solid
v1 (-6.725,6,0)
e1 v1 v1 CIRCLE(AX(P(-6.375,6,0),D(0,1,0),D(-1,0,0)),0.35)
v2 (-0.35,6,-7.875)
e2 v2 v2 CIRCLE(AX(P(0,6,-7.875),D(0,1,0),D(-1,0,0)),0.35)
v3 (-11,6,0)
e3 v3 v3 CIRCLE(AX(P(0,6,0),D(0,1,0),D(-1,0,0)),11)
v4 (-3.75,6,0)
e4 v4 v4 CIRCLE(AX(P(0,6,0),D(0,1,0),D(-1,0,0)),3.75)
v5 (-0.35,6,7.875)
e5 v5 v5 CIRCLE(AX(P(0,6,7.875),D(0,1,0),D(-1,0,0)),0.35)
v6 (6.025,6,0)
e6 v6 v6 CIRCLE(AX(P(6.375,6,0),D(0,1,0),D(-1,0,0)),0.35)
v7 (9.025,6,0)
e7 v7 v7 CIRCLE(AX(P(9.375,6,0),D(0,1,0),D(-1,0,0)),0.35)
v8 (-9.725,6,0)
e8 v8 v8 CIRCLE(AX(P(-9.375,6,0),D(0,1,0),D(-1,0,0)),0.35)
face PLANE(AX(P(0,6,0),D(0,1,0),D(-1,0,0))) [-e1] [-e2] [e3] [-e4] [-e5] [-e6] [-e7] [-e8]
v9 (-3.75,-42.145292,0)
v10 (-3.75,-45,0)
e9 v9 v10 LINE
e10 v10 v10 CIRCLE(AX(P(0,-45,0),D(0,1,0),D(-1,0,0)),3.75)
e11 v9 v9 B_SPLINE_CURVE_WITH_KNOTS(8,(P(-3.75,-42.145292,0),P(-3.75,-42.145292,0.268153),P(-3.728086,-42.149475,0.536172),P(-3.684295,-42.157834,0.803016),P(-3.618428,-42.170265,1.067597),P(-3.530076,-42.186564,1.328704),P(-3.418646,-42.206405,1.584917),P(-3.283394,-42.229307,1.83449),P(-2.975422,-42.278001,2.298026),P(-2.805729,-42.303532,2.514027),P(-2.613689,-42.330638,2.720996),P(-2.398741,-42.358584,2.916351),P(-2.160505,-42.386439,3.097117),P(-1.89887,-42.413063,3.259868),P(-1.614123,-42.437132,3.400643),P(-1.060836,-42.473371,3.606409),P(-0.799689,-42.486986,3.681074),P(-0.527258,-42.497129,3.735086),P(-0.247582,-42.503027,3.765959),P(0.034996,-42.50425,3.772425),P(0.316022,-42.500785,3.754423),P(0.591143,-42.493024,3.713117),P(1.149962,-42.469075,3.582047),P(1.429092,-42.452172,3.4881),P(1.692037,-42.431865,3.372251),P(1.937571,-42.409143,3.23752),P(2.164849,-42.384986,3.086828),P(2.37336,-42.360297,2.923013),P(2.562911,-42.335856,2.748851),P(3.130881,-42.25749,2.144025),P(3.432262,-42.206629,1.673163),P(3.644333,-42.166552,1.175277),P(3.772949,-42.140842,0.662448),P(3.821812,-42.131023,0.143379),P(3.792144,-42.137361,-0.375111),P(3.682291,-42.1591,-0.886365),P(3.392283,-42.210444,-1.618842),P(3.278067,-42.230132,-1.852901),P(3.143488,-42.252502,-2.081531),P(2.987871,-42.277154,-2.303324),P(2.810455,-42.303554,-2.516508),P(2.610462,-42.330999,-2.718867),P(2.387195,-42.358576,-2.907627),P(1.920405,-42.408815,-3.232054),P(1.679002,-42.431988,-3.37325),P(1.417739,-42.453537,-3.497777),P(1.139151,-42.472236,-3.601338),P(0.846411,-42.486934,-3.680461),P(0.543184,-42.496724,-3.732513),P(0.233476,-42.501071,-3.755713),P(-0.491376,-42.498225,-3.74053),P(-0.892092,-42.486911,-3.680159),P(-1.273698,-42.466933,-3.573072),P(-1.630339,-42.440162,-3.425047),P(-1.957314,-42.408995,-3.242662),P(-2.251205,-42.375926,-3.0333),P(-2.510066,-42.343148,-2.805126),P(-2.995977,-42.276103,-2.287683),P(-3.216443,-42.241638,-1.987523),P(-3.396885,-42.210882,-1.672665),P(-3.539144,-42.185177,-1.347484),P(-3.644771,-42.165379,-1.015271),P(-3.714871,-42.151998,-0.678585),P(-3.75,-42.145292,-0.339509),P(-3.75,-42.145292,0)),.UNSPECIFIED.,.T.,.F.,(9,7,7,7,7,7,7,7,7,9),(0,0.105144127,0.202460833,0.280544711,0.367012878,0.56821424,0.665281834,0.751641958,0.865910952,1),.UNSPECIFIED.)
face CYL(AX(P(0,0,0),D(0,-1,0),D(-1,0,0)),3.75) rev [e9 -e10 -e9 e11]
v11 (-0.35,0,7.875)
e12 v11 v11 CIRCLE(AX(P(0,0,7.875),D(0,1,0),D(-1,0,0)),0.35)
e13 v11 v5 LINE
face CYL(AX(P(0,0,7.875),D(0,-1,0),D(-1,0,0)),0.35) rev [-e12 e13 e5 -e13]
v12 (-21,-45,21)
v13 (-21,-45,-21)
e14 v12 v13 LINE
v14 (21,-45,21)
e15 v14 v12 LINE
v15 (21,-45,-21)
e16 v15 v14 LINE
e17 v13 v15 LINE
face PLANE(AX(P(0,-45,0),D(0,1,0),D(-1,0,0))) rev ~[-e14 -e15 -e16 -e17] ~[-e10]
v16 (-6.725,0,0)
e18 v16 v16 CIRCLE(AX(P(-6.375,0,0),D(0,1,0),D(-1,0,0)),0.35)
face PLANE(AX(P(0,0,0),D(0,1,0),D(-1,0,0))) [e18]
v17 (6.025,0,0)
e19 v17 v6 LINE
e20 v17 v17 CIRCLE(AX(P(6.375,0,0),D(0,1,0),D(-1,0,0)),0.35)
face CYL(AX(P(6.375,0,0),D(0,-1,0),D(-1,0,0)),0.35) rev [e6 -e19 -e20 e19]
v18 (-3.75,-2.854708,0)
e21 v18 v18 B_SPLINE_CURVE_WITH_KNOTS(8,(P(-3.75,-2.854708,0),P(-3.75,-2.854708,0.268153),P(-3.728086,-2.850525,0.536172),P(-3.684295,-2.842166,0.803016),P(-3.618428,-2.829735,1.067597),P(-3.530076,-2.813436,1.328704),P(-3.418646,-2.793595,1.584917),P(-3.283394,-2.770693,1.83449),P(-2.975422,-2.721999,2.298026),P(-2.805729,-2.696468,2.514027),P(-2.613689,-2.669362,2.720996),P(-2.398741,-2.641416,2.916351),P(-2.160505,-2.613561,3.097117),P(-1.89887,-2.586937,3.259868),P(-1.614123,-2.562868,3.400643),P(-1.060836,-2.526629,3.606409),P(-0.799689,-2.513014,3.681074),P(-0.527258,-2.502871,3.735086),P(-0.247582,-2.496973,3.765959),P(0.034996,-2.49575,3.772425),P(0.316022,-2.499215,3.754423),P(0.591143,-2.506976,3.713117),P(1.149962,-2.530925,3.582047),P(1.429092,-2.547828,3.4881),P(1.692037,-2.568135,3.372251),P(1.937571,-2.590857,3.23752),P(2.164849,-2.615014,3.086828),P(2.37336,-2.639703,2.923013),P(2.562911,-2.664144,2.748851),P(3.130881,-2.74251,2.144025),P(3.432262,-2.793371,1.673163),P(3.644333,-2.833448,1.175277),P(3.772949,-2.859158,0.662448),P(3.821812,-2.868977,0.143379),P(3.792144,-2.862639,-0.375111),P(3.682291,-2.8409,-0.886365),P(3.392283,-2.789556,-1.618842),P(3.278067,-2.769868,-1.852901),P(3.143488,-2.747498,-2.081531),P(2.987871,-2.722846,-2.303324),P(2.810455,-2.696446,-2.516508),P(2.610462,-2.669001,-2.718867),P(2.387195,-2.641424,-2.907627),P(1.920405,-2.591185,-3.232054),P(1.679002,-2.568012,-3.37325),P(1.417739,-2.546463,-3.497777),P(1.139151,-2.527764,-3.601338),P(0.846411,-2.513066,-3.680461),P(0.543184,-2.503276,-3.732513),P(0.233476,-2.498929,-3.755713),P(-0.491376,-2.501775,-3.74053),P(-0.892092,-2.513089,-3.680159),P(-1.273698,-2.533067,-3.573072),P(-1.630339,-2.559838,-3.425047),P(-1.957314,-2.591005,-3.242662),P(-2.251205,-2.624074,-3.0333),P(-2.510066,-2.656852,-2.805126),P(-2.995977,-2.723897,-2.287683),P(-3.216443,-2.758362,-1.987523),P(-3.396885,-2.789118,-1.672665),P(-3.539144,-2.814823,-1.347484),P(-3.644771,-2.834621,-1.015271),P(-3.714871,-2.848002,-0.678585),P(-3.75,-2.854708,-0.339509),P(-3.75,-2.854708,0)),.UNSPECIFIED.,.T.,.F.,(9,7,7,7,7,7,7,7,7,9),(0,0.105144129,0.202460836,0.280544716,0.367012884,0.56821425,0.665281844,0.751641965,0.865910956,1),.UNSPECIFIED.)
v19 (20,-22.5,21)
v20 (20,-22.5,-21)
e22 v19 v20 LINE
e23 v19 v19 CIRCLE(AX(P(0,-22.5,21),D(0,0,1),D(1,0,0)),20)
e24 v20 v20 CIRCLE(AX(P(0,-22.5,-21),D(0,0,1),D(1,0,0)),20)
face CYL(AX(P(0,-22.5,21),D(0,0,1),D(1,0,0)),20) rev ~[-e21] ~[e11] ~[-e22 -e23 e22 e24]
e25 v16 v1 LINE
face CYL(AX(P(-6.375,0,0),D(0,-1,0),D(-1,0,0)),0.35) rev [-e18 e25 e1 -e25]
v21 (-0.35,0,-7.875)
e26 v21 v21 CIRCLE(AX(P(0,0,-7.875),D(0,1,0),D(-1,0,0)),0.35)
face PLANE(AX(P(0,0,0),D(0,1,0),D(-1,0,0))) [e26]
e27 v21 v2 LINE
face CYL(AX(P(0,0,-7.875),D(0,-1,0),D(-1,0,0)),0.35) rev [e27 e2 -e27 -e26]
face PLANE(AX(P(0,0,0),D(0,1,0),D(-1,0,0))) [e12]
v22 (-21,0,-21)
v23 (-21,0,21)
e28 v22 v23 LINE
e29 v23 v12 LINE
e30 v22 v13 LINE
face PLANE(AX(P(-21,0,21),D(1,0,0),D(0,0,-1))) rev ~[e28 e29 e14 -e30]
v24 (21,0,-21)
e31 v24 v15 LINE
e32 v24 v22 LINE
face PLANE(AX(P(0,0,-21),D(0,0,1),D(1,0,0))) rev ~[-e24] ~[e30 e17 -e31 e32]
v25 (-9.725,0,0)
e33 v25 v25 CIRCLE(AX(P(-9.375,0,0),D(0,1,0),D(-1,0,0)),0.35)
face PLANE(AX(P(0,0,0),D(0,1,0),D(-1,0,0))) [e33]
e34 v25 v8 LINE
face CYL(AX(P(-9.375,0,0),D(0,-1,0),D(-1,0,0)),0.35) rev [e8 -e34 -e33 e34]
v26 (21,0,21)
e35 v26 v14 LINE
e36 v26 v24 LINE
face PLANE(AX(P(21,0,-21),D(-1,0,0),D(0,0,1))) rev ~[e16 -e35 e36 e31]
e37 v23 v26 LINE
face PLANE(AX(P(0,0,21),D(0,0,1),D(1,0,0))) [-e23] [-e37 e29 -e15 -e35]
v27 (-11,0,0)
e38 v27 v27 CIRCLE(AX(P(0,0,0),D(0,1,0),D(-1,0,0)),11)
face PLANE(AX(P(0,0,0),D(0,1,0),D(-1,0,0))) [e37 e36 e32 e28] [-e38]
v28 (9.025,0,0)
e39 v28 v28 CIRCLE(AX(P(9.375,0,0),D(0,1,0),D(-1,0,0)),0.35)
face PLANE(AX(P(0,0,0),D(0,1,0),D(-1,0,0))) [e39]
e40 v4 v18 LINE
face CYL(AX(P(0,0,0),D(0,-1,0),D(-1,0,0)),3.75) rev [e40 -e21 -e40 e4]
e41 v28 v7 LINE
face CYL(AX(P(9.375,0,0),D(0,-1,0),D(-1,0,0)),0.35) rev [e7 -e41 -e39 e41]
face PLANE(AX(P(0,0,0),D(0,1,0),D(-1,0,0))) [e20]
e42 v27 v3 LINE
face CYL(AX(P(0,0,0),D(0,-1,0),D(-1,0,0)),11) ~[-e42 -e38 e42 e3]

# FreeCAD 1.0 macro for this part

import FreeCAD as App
import Part
import Sketcher

V = App.Vector
Q = App.Units.Quantity


def add_polygon(sketch, points):
    """Adds a closed chain of lines whose ends are joined by coincident constraints."""
    first, n = sketch.GeometryCount, len(points)
    for a, b in zip(points, points[1:] + points[:1]):
        sketch.addGeometry(Part.LineSegment(App.Vector(*a, 0), App.Vector(*b, 0)), False)
    for i in range(n):
        sketch.addConstraint(Sketcher.Constraint("Coincident", first + i, 2, first + (i + 1) % n, 1))

doc = App.newDocument("Part")
body = doc.addObject("PartDesign::Body", "Body")

# Sketch on XZ plane
sketch1 = body.newObject("Sketcher::SketchObject", "Sketch")
sketch1.AttachmentSupport = (doc.getObject("XZ_Plane"), [""])
sketch1.MapMode = "FlatFace"
add_polygon(sketch1, [(21, -21), (-21, -21), (-21, 21), (21, 21)])  # lines 0-3
sketch1.addGeometry(Part.Circle(V(0, 0, 0), V(0, 0, 1), 3.75), False)  # 4
sketch1.addConstraint(Sketcher.Constraint("Horizontal", 0))
sketch1.addConstraint(Sketcher.Constraint("Vertical", 1))
sketch1.addConstraint(Sketcher.Constraint("Horizontal", 2))
sketch1.addConstraint(Sketcher.Constraint("Vertical", 3))
sketch1.addConstraint(Sketcher.Constraint("Coincident", 4, 3, -1, 1))
sketch1.addConstraint(Sketcher.Constraint("Symmetric", 0, 2, 2, 2, -1, 1))
sketch1.addConstraint(Sketcher.Constraint("Equal", 2, 1))
sketch1.addConstraint(Sketcher.Constraint("Diameter", 4, Q("7.5 mm")))
sketch1.addConstraint(Sketcher.Constraint("DistanceX", 0, 2, -1, 1, Q("21 mm")))
pad1 = body.newObject("PartDesign::Pad", "Pad")
pad1.Profile = sketch1
pad1.Length = 45

# Sketch on XZ plane
sketch2 = body.newObject("Sketcher::SketchObject", "Sketch001")
sketch2.AttachmentSupport = (doc.getObject("XZ_Plane"), [""])
sketch2.MapMode = "FlatFace"
sketch2.addGeometry(Part.Circle(V(0, 0, 0), V(0, 0, 1), 11), False)
sketch2.addGeometry(Part.Circle(V(0, -7.875, 0), V(0, 0, 1), 0.35), False)
sketch2.addGeometry(Part.Circle(V(9.375, 0, 0), V(0, 0, 1), 0.35), False)
sketch2.addGeometry(Part.Circle(V(6.375, 0, 0), V(0, 0, 1), 0.35), False)
sketch2.addGeometry(Part.Circle(V(0, 0, 0), V(0, 0, 1), 3.75), False)
sketch2.addGeometry(Part.Circle(V(-6.375, 0, 0), V(0, 0, 1), 0.35), False)
sketch2.addGeometry(Part.Circle(V(-9.375, 0, 0), V(0, 0, 1), 0.35), False)
sketch2.addGeometry(Part.Circle(V(0, 7.875, 0), V(0, 0, 1), 0.35), False)
sketch2.addConstraint(Sketcher.Constraint("Coincident", 0, 3, -1, 1))
sketch2.addConstraint(Sketcher.Constraint("Coincident", 4, 3, -1, 1))
sketch2.addConstraint(Sketcher.Constraint("Equal", 1, 2))
sketch2.addConstraint(Sketcher.Constraint("Equal", 2, 3))
sketch2.addConstraint(Sketcher.Constraint("Equal", 3, 5))
sketch2.addConstraint(Sketcher.Constraint("Equal", 5, 6))
sketch2.addConstraint(Sketcher.Constraint("Equal", 6, 7))
sketch2.addConstraint(Sketcher.Constraint("Symmetric", 3, 3, 5, 3, -1, 1))
sketch2.addConstraint(Sketcher.Constraint("Symmetric", 2, 3, 6, 3, -1, 1))
sketch2.addConstraint(Sketcher.Constraint("Symmetric", 1, 3, 7, 3, -1, 1))
sketch2.addConstraint(Sketcher.Constraint("PointOnObject", 1, 3, -2))
sketch2.addConstraint(Sketcher.Constraint("PointOnObject", 2, 3, -1))
sketch2.addConstraint(Sketcher.Constraint("PointOnObject", 3, 3, -1))
sketch2.addConstraint(Sketcher.Constraint("Diameter", 0, Q("22 mm")))
sketch2.addConstraint(Sketcher.Constraint("Diameter", 1, Q("0.7 mm")))
sketch2.addConstraint(Sketcher.Constraint("Diameter", 4, Q("7.5 mm")))
sketch2.addConstraint(Sketcher.Constraint("DistanceX", 5, 3, 3, 3, Q("12.75 mm")))
sketch2.addConstraint(Sketcher.Constraint("DistanceX", 5, 3, 2, 3, Q("15.75 mm")))
sketch2.addConstraint(Sketcher.Constraint("DistanceY", 1, 3, -1, 1, Q("7.875 mm")))
pad2 = body.newObject("PartDesign::Pad", "Pad001")
pad2.Profile = sketch2
pad2.Length = 6
pad2.Reversed = True

# Sketch on XY plane
sketch3 = body.newObject("Sketcher::SketchObject", "Sketch002")
sketch3.AttachmentSupport = (doc.getObject("XY_Plane"), [""])
sketch3.MapMode = "FlatFace"
sketch3.AttachmentOffset = App.Placement(V(0, 0, 21), App.Rotation())
sketch3.addGeometry(Part.Circle(V(0, -22.5, 0), V(0, 0, 1), 20), False)
sketch3.addConstraint(Sketcher.Constraint("PointOnObject", 0, 3, -2))
sketch3.addConstraint(Sketcher.Constraint("Diameter", 0, Q("40 mm")))
sketch3.addConstraint(Sketcher.Constraint("DistanceY", 0, 3, -1, 1, Q("22.5 mm")))
pocket1 = body.newObject("PartDesign::Pocket", "Pocket")
pocket1.Profile = sketch3
pocket1.Length = 45

doc.recompute()
